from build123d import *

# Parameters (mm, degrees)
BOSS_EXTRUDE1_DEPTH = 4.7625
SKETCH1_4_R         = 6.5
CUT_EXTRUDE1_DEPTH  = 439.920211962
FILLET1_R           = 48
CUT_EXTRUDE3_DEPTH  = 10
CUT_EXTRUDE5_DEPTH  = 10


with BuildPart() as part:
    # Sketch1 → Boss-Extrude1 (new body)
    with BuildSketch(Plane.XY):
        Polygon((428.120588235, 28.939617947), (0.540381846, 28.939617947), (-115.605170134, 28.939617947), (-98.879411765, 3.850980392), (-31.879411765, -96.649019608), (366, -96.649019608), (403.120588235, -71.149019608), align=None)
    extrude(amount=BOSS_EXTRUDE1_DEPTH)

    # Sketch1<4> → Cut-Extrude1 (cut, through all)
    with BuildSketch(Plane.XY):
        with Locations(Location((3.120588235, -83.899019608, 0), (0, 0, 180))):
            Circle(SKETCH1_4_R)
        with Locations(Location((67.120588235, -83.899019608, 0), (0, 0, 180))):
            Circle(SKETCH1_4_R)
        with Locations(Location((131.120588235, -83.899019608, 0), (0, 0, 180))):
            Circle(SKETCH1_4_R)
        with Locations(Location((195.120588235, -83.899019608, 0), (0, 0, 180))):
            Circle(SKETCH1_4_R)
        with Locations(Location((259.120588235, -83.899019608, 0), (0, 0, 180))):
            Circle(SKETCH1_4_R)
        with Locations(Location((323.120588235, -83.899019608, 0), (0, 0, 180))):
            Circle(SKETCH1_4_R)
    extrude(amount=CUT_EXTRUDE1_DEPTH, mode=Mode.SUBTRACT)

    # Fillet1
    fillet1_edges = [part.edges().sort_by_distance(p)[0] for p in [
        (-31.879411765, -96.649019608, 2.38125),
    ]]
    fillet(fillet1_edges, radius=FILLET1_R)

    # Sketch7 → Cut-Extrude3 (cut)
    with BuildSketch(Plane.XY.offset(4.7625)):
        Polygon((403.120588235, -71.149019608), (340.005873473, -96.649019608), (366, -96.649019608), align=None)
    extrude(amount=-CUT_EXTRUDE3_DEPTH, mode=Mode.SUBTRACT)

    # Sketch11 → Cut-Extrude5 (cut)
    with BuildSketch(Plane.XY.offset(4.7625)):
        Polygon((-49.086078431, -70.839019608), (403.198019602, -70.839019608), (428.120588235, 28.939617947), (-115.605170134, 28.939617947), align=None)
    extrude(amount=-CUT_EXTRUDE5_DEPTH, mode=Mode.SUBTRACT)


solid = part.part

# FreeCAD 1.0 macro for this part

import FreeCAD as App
import Part
import Sketcher
from FreeCAD import Vector
Q = App.Units.Quantity


def edges_at(feature, points):
    """Names of the edges that pass closest to the given points."""
    edges = feature.Shape.Edges
    near = lambda p: min(range(len(edges)), key=lambda i: edges[i].distToShape(Part.Vertex(*p))[0])
    return sorted({f"Edge{near(p) + 1}" for p in points})

doc = App.newDocument("Part")
params = doc.addObject("Spreadsheet::Sheet", "Params")
for row, (alias, value) in enumerate([
    ("pad1_length", "4.7625 mm"),
    ("sketch2_diameter", "13 mm"),
    ("fillet_radius", "48 mm"),
    ("pocket2_length", "10 mm"),
    ("pocket3_length", "10 mm"),
], start=1):
    params.set(f"A{row}", alias)
    params.set(f"B{row}", "=" + value)
    params.setAlias(f"B{row}", alias)

body = doc.addObject("PartDesign::Body", "Body")

# Sketch on XY plane
sketch1 = body.newObject("Sketcher::SketchObject", "Sketch")
sketch1.AttachmentSupport = (doc.getObject("XY_Plane"), [""])
sketch1.MapMode = "FlatFace"
sketch1.addGeometry([
    Part.LineSegment(Vector(428.120588, 28.939618, 0), Vector(-115.60517, 28.939618, 0)),  # 0
    Part.LineSegment(Vector(-115.60517, 28.939618, 0), Vector(-98.879412, 3.85098, 0)),  # 1
    Part.LineSegment(Vector(-98.879412, 3.85098, 0), Vector(-31.879412, -96.64902, 0)),  # 2
    Part.LineSegment(Vector(-31.879412, -96.64902, 0), Vector(366, -96.64902, 0)),  # 3
    Part.LineSegment(Vector(366, -96.64902, 0), Vector(403.120588, -71.14902, 0)),  # 4
    Part.LineSegment(Vector(403.120588, -71.14902, 0), Vector(428.120588, 28.939618, 0)),  # 5
], False)
sketch1.addConstraint([
    Sketcher.Constraint("Coincident", 0, 2, 1, 1),
    Sketcher.Constraint("Coincident", 1, 2, 2, 1),
    Sketcher.Constraint("Coincident", 2, 2, 3, 1),
    Sketcher.Constraint("Coincident", 3, 2, 4, 1),
    Sketcher.Constraint("Coincident", 4, 2, 5, 1),
    Sketcher.Constraint("Coincident", 5, 2, 0, 1),
    Sketcher.Constraint("Horizontal", 0),
    Sketcher.Constraint("Horizontal", 3),
    Sketcher.Constraint("Parallel", 1, 2),
    Sketcher.Constraint("DistanceX", -1, 1, 3, 2, 366.0),
    Sketcher.Constraint("DistanceX", 1, 2, 2, 2, 67.0),
    Sketcher.Constraint("DistanceX", 2, 2, 4, 2, 435.0),
    Sketcher.Constraint("DistanceY", 4, 2, 1, 2, 75.0),
    Sketcher.Constraint("DistanceX", 4, 2, 5, 2, 25.0),
    Sketcher.Constraint("DistanceY", 2, 2, 1, 2, 100.5),
    Sketcher.Constraint("DistanceX", 0, 2, 0, 1, 543.725758),
    Sketcher.Constraint("DistanceX", 3, 1, 3, 2, 397.879412),
    Sketcher.Constraint("DistanceY", -1, 1, 1, 2, 3.85098),
])
pad1 = body.newObject("PartDesign::Pad", "Pad")
pad1.Profile = sketch1
pad1.setExpression("Length", "Params.pad1_length")

# Sketch on XY plane
sketch2 = body.newObject("Sketcher::SketchObject", "Sketch001")
sketch2.AttachmentSupport = (doc.getObject("XY_Plane"), [""])
sketch2.MapMode = "FlatFace"
sketch2.addGeometry([
    Part.Circle(Vector(3.120588, -83.89902, 0), Vector(0, 0, 1), 6.5),  # 0
    Part.Circle(Vector(67.120588, -83.89902, 0), Vector(0, 0, 1), 6.5),  # 1
    Part.Circle(Vector(131.120588, -83.89902, 0), Vector(0, 0, 1), 6.5),  # 2
    Part.Circle(Vector(195.120588, -83.89902, 0), Vector(0, 0, 1), 6.5),  # 3
    Part.Circle(Vector(259.120588, -83.89902, 0), Vector(0, 0, 1), 6.5),  # 4
    Part.Circle(Vector(323.120588, -83.89902, 0), Vector(0, 0, 1), 6.5),  # 5
], False)
sketch2.addConstraint([
    Sketcher.Constraint("Equal", 0, 1),
    Sketcher.Constraint("Equal", 1, 2),
    Sketcher.Constraint("Equal", 2, 3),
    Sketcher.Constraint("Equal", 3, 4),
    Sketcher.Constraint("Equal", 4, 5),
    Sketcher.Constraint("Horizontal", 0, 3, 1, 3),
    Sketcher.Constraint("Horizontal", 1, 3, 2, 3),
    Sketcher.Constraint("Horizontal", 2, 3, 3, 3),
    Sketcher.Constraint("Horizontal", 3, 3, 4, 3),
    Sketcher.Constraint("Horizontal", 4, 3, 5, 3),
    Sketcher.Constraint("Diameter", 0, 13.0),
    Sketcher.Constraint("DistanceX", 0, 3, 1, 3, 64.0),
    Sketcher.Constraint("DistanceX", 1, 3, 2, 3, 64.0),
    Sketcher.Constraint("DistanceX", 2, 3, 3, 3, 64.0),
    Sketcher.Constraint("DistanceX", 3, 3, 4, 3, 64.0),
    Sketcher.Constraint("DistanceX", 4, 3, 5, 3, 64.0),
    Sketcher.Constraint("DistanceX", -1, 1, 0, 3, 3.120588),
    Sketcher.Constraint("DistanceY", 0, 3, -1, 1, 83.89902),
])
sketch2.setExpression("Constraints[10]", "Params.sketch2_diameter")
pocket1 = body.newObject("PartDesign::Pocket", "Pocket")
pocket1.Profile = sketch2
pocket1.Type = "ThroughAll"
pocket1.Reversed = True
doc.recompute()

fillet = body.newObject("PartDesign::Fillet", "Fillet")
fillet.Base = (pocket1, edges_at(pocket1, [(-31.879, -96.649, 2.381)]))
fillet.setExpression("Radius", "Params.fillet_radius")

# Sketch on XY plane
sketch3 = body.newObject("Sketcher::SketchObject", "Sketch002")
sketch3.AttachmentSupport = (doc.getObject("XY_Plane"), [""])
sketch3.MapMode = "FlatFace"
sketch3.AttachmentOffset = App.Placement(Vector(0, 0, 4.7625), App.Rotation())
sketch3.addGeometry([
    Part.LineSegment(Vector(403.120588, -71.14902, 0), Vector(340.005873, -96.64902, 0)),
    Part.LineSegment(Vector(340.005873, -96.64902, 0), Vector(366, -96.64902, 0)),
    Part.LineSegment(Vector(366, -96.64902, 0), Vector(403.120588, -71.14902, 0)),
], False)
sketch3.addConstraint([
    Sketcher.Constraint("Coincident", 0, 2, 1, 1),
    Sketcher.Constraint("Coincident", 1, 2, 2, 1),
    Sketcher.Constraint("Coincident", 2, 2, 0, 1),
    Sketcher.Constraint("Horizontal", 1),
    Sketcher.Constraint("Angle", 0, Q("-158 deg")),
    Sketcher.Constraint("DistanceX", -1, 1, 1, 2, 366.0),
    Sketcher.Constraint("DistanceY", 1, 2, 2, 2, 25.5),
    Sketcher.Constraint("Distance", 2, 45.035409),
    Sketcher.Constraint("DistanceY", 0, 2, -1, 1, 96.64902),
])
pocket2 = body.newObject("PartDesign::Pocket", "Pocket001")
pocket2.Profile = sketch3
pocket2.setExpression("Length", "Params.pocket2_length")

# Sketch on XY plane
sketch4 = body.newObject("Sketcher::SketchObject", "Sketch003")
sketch4.AttachmentSupport = (doc.getObject("XY_Plane"), [""])
sketch4.MapMode = "FlatFace"
sketch4.AttachmentOffset = App.Placement(Vector(0, 0, 4.7625), App.Rotation())
sketch4.addGeometry([
    Part.LineSegment(Vector(-49.086078, -70.83902, 0), Vector(403.19802, -70.83902, 0)),
    Part.LineSegment(Vector(403.19802, -70.83902, 0), Vector(428.120588, 28.939618, 0)),
    Part.LineSegment(Vector(428.120588, 28.939618, 0), Vector(-115.60517, 28.939618, 0)),
    Part.LineSegment(Vector(-115.60517, 28.939618, 0), Vector(-49.086078, -70.83902, 0)),
], False)
sketch4.addConstraint([
    Sketcher.Constraint("Coincident", 0, 2, 1, 1),
    Sketcher.Constraint("Coincident", 1, 2, 2, 1),
    Sketcher.Constraint("Coincident", 2, 2, 3, 1),
    Sketcher.Constraint("Coincident", 3, 2, 0, 1),
    Sketcher.Constraint("Horizontal", 0),
    Sketcher.Constraint("Horizontal", 2),
    Sketcher.Constraint("DistanceX", 0, 1, 0, 2, 452.284098),
    Sketcher.Constraint("DistanceX", 2, 2, 2, 1, 543.725758),
    Sketcher.Constraint("Distance", 1, 102.84411),
    Sketcher.Constraint("DistanceX", -1, 1, 0, 2, 403.19802),
    Sketcher.Constraint("DistanceY", 0, 2, -1, 1, 70.83902),
    Sketcher.Constraint("DistanceX", -1, 1, 1, 2, 428.120588),
])
pocket3 = body.newObject("PartDesign::Pocket", "Pocket002")
pocket3.Profile = sketch4
pocket3.setExpression("Length", "Params.pocket3_length")

doc.recompute()
